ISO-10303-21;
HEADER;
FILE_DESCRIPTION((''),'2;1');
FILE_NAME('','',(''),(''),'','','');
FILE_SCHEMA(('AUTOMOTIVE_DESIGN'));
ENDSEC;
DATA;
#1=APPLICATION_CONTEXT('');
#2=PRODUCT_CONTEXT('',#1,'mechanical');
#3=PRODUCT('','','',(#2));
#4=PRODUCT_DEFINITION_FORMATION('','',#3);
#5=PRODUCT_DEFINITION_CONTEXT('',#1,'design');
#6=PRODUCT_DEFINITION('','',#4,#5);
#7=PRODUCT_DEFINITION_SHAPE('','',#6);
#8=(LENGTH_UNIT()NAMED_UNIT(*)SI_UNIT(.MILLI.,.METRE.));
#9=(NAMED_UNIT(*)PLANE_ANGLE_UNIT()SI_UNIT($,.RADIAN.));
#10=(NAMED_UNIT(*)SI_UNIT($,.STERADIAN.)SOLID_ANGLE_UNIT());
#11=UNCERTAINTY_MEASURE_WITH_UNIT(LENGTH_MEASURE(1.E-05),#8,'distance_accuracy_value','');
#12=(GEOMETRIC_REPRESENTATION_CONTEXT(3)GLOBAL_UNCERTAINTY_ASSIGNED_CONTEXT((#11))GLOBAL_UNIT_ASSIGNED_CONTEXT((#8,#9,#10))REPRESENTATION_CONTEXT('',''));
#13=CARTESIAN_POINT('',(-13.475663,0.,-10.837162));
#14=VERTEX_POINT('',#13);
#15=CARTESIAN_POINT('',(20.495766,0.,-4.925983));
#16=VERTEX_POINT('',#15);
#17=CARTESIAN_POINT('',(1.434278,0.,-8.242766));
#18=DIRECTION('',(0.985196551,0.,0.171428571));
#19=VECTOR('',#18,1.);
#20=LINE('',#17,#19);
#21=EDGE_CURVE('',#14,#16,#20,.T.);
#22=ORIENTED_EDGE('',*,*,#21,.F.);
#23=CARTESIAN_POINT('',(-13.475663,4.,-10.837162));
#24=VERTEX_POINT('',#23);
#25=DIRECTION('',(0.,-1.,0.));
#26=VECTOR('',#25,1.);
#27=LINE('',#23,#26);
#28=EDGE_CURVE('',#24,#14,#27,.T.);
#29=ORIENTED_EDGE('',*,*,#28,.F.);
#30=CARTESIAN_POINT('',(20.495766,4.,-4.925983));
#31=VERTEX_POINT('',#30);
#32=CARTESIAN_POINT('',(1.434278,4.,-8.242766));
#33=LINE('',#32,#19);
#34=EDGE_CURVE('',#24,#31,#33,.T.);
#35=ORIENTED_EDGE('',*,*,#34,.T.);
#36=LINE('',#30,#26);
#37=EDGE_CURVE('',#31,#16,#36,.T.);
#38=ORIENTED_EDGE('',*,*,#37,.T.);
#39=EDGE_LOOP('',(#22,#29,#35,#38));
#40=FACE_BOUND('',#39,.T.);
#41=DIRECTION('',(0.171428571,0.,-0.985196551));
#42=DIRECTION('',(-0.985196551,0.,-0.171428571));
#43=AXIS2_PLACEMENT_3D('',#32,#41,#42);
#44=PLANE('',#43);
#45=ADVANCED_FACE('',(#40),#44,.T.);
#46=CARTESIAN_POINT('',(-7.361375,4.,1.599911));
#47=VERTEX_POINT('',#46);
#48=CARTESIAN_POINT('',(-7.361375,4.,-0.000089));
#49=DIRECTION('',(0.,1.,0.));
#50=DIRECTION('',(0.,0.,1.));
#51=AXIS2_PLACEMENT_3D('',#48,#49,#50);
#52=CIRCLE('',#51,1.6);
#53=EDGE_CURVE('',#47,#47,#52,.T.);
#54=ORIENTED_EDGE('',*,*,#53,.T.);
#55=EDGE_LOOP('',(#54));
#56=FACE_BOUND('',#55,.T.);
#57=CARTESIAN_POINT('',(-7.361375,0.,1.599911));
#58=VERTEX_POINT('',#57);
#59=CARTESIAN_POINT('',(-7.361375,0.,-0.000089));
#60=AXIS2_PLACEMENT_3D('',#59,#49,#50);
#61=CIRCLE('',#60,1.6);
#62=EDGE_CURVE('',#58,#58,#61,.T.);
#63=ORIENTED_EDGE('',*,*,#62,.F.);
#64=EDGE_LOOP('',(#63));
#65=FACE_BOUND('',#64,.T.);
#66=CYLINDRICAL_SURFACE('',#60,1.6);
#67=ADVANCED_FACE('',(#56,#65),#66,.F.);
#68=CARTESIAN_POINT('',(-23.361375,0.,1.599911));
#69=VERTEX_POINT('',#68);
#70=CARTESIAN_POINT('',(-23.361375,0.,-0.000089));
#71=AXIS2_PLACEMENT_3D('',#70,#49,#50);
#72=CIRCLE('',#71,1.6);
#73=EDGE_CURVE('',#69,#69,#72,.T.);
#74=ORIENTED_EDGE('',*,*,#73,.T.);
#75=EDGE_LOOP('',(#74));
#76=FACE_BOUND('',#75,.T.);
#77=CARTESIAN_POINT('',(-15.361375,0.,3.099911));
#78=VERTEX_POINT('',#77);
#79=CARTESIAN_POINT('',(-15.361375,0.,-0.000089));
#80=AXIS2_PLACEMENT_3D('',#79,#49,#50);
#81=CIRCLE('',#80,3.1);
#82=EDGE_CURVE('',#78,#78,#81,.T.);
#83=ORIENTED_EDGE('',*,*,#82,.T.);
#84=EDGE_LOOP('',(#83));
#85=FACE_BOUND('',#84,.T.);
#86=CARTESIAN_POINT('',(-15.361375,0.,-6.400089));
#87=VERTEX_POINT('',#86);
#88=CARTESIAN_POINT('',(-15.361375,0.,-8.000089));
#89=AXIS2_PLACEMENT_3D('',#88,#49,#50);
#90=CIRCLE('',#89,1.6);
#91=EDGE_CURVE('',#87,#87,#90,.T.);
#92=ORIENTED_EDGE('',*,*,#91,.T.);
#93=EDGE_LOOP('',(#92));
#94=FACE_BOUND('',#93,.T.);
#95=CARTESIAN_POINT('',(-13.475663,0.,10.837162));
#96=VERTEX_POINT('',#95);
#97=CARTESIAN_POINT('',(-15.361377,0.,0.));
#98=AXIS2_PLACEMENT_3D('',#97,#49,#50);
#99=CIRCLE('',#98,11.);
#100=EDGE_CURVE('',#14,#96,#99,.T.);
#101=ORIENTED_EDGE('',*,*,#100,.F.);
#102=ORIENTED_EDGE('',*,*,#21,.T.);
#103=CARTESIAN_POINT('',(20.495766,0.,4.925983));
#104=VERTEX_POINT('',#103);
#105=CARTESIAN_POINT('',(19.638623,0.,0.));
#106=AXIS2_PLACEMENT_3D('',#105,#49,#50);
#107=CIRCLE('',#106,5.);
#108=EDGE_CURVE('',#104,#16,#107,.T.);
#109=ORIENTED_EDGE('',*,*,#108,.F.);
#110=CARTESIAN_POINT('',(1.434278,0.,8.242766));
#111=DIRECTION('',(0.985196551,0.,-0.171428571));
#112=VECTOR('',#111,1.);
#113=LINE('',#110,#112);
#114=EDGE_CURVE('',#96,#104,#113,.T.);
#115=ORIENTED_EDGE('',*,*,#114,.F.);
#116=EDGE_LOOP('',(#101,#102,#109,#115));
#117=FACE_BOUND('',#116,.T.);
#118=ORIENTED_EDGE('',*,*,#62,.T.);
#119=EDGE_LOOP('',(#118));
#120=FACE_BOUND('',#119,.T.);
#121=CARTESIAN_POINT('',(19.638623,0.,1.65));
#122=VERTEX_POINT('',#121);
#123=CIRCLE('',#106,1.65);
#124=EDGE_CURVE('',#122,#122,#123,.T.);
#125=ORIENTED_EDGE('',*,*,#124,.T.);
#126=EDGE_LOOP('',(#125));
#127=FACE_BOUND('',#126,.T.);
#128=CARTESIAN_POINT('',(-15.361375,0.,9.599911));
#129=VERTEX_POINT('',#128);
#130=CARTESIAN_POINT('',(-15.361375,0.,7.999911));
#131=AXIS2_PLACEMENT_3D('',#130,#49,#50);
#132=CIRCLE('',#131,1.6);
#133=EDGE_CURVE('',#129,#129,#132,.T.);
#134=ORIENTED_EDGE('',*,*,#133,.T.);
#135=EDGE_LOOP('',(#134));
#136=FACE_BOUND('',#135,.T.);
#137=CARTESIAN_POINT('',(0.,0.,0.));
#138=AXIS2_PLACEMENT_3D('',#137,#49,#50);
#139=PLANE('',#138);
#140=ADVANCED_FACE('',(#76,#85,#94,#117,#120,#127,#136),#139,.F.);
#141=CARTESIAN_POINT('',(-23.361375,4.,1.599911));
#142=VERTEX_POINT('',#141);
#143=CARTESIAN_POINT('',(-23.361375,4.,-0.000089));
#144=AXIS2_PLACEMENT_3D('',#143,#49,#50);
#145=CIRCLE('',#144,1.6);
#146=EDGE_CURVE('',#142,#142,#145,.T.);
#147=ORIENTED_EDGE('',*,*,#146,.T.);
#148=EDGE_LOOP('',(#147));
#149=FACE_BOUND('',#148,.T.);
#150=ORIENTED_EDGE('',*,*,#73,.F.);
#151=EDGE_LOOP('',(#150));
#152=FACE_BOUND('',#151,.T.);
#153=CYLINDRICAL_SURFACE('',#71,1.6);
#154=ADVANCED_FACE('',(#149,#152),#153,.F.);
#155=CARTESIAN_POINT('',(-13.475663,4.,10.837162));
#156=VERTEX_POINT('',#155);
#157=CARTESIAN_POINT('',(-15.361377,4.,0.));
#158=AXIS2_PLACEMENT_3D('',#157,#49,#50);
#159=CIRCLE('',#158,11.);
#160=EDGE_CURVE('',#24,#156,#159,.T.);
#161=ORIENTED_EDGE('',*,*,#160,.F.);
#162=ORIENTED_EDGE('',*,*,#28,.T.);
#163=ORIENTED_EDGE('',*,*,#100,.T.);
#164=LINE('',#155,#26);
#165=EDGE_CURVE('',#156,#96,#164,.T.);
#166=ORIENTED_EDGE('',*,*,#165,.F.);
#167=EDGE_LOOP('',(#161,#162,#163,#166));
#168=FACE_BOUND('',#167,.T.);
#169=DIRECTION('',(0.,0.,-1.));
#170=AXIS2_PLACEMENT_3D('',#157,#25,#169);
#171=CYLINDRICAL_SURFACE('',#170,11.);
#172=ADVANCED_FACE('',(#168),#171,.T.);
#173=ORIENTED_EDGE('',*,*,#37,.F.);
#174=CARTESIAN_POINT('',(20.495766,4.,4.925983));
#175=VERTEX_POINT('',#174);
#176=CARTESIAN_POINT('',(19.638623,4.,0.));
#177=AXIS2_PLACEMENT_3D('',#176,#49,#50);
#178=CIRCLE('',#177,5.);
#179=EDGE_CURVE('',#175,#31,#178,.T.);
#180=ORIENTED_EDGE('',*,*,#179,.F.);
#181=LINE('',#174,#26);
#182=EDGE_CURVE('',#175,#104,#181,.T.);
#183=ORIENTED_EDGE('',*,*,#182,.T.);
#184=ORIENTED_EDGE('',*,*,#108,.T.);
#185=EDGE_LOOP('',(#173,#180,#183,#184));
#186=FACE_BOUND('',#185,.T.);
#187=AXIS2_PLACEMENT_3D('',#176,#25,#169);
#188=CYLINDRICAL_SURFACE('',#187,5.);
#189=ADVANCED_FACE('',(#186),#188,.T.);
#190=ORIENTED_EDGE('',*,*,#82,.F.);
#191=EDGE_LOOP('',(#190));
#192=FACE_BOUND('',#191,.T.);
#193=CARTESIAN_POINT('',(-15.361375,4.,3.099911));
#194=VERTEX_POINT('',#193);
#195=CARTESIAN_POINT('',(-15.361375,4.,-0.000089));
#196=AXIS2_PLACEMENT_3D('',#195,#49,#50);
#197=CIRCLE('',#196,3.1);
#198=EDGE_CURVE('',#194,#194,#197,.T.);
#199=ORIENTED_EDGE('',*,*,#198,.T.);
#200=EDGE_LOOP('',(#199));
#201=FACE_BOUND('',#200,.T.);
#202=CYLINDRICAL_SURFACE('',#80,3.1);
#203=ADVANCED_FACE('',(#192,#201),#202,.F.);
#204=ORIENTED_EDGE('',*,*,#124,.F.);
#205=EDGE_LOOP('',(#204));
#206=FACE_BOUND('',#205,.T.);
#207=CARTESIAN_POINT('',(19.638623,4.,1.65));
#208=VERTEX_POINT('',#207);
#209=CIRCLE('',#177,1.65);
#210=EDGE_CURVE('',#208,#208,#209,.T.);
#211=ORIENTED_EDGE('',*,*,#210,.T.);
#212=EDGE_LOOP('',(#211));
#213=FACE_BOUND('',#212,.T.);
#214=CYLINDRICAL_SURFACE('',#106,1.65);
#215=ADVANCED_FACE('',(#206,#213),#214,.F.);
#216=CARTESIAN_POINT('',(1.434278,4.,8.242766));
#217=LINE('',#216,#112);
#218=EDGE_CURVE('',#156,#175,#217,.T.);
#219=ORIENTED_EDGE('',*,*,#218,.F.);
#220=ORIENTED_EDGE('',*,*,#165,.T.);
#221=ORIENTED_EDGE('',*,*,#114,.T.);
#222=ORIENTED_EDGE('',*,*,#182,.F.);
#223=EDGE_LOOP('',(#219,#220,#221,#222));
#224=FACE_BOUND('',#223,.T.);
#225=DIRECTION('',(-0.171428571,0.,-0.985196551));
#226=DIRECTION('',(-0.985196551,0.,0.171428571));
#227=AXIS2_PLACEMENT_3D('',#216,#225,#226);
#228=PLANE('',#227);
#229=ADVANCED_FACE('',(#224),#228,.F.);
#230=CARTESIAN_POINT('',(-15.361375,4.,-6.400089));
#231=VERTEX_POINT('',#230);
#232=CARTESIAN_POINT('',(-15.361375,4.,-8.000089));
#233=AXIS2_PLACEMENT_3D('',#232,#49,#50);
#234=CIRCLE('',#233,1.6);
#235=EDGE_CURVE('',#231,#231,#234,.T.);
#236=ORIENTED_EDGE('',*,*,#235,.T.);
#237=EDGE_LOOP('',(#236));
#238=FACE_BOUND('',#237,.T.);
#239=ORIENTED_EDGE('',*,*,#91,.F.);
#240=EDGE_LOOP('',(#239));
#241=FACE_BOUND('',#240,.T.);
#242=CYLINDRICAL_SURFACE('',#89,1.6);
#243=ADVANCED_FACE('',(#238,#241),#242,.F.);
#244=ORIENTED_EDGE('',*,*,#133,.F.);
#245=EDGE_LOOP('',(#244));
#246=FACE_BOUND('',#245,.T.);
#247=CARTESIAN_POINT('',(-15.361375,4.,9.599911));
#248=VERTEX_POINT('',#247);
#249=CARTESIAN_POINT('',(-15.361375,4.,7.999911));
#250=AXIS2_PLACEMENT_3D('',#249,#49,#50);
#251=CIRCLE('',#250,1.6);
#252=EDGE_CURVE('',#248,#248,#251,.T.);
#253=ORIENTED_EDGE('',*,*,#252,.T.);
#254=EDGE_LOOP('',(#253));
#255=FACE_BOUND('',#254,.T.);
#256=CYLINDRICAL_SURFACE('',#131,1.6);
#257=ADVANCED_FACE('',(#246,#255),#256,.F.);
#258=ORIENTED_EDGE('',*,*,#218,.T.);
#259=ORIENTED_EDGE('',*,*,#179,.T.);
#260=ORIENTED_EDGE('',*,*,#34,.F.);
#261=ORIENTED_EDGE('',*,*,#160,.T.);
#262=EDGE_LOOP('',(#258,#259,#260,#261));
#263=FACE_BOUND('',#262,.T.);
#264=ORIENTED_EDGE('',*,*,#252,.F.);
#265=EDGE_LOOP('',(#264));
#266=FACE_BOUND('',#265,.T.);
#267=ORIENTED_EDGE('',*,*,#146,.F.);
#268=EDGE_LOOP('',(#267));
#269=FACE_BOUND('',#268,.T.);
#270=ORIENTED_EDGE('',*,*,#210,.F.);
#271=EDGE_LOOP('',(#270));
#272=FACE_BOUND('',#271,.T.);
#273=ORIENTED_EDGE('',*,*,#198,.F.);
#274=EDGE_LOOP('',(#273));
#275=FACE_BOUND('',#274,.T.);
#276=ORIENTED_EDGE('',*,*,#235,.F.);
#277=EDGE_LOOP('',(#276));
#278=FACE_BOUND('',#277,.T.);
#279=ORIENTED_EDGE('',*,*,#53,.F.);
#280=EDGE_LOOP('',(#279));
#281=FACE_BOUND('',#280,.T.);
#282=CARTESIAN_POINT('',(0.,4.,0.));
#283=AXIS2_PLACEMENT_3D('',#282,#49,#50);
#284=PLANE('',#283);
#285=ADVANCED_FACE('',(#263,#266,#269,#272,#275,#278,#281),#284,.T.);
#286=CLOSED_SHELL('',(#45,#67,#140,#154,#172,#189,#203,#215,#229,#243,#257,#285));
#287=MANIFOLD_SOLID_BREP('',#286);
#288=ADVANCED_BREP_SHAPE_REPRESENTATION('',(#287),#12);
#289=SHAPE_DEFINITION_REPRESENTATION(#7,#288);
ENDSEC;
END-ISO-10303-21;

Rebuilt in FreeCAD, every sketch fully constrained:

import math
import FreeCAD as App
import Part
import Sketcher

V = App.Vector

doc = App.newDocument("Part")
body = doc.addObject("PartDesign::Body", "Body")

sketch1 = doc.addObject("Sketcher::SketchObject", "Sketch")
body.addObject(sketch1)
sketch1.AttachmentSupport = (doc.XZ_Plane, [""])
sketch1.MapMode = "FlatFace"
sketch1.addGeometry([
    Part.LineSegment(V(20.495766, -4.925983, 0), V(-13.475663, -10.837162, 0)),
    Part.ArcOfCircle(Part.Circle(V(-15.361377, 0, 0), V(0, 0, 1), 11), math.radians(80.129111), math.radians(279.870889)),
    Part.LineSegment(V(-13.475663, 10.837162, 0), V(20.495766, 4.925983, 0)),
    Part.ArcOfCircle(Part.Circle(V(19.638623, 0, 0), V(0, 0, 1), 5), math.radians(-80.129112), math.radians(80.129112)),
], False)
sketch1.addConstraint([
    Sketcher.Constraint("Tangent", 0, 2, 1, 2),
    Sketcher.Constraint("Tangent", 1, 1, 2, 1),
    Sketcher.Constraint("Tangent", 2, 2, 3, 2),
    Sketcher.Constraint("Tangent", 3, 1, 0, 1),
    Sketcher.Constraint("Symmetric", 0, 2, 1, 1, -1),
    Sketcher.Constraint("Radius", 1, 11.0),
    Sketcher.Constraint("Radius", 3, 5.0),
    Sketcher.Constraint("DistanceX", 1, 3, 3, 3, 35.0),
    Sketcher.Constraint("DistanceX", 1, 3, -1, 1, 15.361377),
])
pad1 = doc.addObject("PartDesign::Pad", "Pad")
body.addObject(pad1)
pad1.Profile = sketch1
pad1.Length = 4
pad1.Reversed = True

sketch2 = doc.addObject("Sketcher::SketchObject", "Sketch001")
body.addObject(sketch2)
sketch2.AttachmentSupport = (doc.XZ_Plane, [""])
sketch2.MapMode = "FlatFace"
sketch2.AttachmentOffset = App.Placement(V(0, 0, -4), App.Rotation())
sketch2.addGeometry([
    Part.Circle(V(-15.361375, -0.000089, 0), V(0, 0, 1), 3.1),
    Part.Circle(V(-23.361375, -0.000089, 0), V(0, 0, 1), 1.6),
    Part.Circle(V(-15.361375, -8.000089, 0), V(0, 0, 1), 1.6),
    Part.Circle(V(-7.361375, -0.000089, 0), V(0, 0, 1), 1.6),
    Part.Circle(V(-15.361375, 7.999911, 0), V(0, 0, 1), 1.6),
    Part.Circle(V(19.638623, 0, 0), V(0, 0, 1), 1.65),
], False)
sketch2.addConstraint([
    Sketcher.Constraint("Equal", 1, 2),
    Sketcher.Constraint("Equal", 2, 3),
    Sketcher.Constraint("Equal", 3, 4),
    Sketcher.Constraint("PointOnObject", 5, 3, -1),
    Sketcher.Constraint("Horizontal", 0, 3, 1, 3),
    Sketcher.Constraint("Horizontal", 1, 3, 3, 3),
    Sketcher.Constraint("Vertical", 0, 3, 2, 3),
    Sketcher.Constraint("Vertical", 2, 3, 4, 3),
    Sketcher.Constraint("Diameter", 0, 6.2),
    Sketcher.Constraint("Diameter", 1, 3.2),
    Sketcher.Constraint("Diameter", 5, 3.3),
    Sketcher.Constraint("DistanceX", 1, 3, 0, 3, 8.0),
    Sketcher.Constraint("DistanceY", 2, 3, 0, 3, 8.0),
    Sketcher.Constraint("DistanceX", 0, 3, 3, 3, 8.0),
    Sketcher.Constraint("DistanceY", 0, 3, 4, 3, 8.0),
    Sketcher.Constraint("DistanceY", 2, 3, -1, 1, 8.000089),
    Sketcher.Constraint("DistanceX", 0, 3, -1, 1, 15.361375),
    Sketcher.Constraint("DistanceX", -1, 1, 5, 3, 19.638623),
])
pocket1 = doc.addObject("PartDesign::Pocket", "Pocket")
body.addObject(pocket1)
pocket1.Profile = sketch2
pocket1.Length = 4
pocket1.Reversed = True

doc.recompute()
